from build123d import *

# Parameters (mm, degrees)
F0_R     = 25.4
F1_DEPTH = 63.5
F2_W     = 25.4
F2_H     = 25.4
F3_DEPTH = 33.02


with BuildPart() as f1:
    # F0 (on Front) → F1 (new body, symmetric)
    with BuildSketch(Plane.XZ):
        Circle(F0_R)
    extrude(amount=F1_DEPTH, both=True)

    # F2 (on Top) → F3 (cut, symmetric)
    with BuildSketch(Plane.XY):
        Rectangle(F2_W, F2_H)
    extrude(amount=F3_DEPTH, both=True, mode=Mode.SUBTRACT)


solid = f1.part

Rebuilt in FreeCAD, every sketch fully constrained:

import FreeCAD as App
import Part
import Sketcher
Q = App.Units.Quantity

doc = App.newDocument("Part")
body = doc.addObject("PartDesign::Body", "Body")

# Sketch on XZ plane
sketch1 = body.newObject("Sketcher::SketchObject", "Sketch")
sketch1.AttachmentSupport = (doc.getObject("XZ_Plane"), [""])
sketch1.MapMode = "FlatFace"
sketch1.addGeometry(Part.Circle(App.Vector(0, 0, 0), App.Vector(0, 0, 1), 25), False)
sketch1.addConstraint(Sketcher.Constraint("Coincident", 0, 3, -1, 1))
sketch1.addConstraint(Sketcher.Constraint("Diameter", 0, Q("2 in")))
pad1 = body.newObject("PartDesign::Pad", "Pad")
pad1.Profile = sketch1
pad1.Length = Q("5 in")
pad1.Midplane = True

# Sketch on XY plane
sketch2 = body.newObject("Sketcher::SketchObject", "Sketch001")
sketch2.AttachmentSupport = (doc.getObject("XY_Plane"), [""])
sketch2.MapMode = "FlatFace"
sketch2.addGeometry(Part.LineSegment(App.Vector(-13, 13, 0), App.Vector(-13, -13, 0)), False)
sketch2.addGeometry(Part.LineSegment(App.Vector(-13, -13, 0), App.Vector(13, -13, 0)), False)
sketch2.addGeometry(Part.LineSegment(App.Vector(13, -13, 0), App.Vector(13, 13, 0)), False)
sketch2.addGeometry(Part.LineSegment(App.Vector(13, 13, 0), App.Vector(-13, 13, 0)), False)
sketch2.addConstraint(Sketcher.Constraint("Coincident", 0, 2, 1, 1))
sketch2.addConstraint(Sketcher.Constraint("Coincident", 1, 2, 2, 1))
sketch2.addConstraint(Sketcher.Constraint("Coincident", 2, 2, 3, 1))
sketch2.addConstraint(Sketcher.Constraint("Coincident", 3, 2, 0, 1))
sketch2.addConstraint(Sketcher.Constraint("Vertical", 0))
sketch2.addConstraint(Sketcher.Constraint("Horizontal", 1))
sketch2.addConstraint(Sketcher.Constraint("Vertical", 2))
sketch2.addConstraint(Sketcher.Constraint("Horizontal", 3))
sketch2.addConstraint(Sketcher.Constraint("Symmetric", 0, 2, 2, 2, -1, 1))
sketch2.addConstraint(Sketcher.Constraint("Equal", 3, 0))
sketch2.addConstraint(Sketcher.Constraint("DistanceX", 1, 1, 1, 2, Q("1 in")))
pocket1 = body.newObject("PartDesign::Pocket", "Pocket")
pocket1.Profile = sketch2
pocket1.Length = Q("2.6 in")
pocket1.Midplane = True

doc.recompute()
